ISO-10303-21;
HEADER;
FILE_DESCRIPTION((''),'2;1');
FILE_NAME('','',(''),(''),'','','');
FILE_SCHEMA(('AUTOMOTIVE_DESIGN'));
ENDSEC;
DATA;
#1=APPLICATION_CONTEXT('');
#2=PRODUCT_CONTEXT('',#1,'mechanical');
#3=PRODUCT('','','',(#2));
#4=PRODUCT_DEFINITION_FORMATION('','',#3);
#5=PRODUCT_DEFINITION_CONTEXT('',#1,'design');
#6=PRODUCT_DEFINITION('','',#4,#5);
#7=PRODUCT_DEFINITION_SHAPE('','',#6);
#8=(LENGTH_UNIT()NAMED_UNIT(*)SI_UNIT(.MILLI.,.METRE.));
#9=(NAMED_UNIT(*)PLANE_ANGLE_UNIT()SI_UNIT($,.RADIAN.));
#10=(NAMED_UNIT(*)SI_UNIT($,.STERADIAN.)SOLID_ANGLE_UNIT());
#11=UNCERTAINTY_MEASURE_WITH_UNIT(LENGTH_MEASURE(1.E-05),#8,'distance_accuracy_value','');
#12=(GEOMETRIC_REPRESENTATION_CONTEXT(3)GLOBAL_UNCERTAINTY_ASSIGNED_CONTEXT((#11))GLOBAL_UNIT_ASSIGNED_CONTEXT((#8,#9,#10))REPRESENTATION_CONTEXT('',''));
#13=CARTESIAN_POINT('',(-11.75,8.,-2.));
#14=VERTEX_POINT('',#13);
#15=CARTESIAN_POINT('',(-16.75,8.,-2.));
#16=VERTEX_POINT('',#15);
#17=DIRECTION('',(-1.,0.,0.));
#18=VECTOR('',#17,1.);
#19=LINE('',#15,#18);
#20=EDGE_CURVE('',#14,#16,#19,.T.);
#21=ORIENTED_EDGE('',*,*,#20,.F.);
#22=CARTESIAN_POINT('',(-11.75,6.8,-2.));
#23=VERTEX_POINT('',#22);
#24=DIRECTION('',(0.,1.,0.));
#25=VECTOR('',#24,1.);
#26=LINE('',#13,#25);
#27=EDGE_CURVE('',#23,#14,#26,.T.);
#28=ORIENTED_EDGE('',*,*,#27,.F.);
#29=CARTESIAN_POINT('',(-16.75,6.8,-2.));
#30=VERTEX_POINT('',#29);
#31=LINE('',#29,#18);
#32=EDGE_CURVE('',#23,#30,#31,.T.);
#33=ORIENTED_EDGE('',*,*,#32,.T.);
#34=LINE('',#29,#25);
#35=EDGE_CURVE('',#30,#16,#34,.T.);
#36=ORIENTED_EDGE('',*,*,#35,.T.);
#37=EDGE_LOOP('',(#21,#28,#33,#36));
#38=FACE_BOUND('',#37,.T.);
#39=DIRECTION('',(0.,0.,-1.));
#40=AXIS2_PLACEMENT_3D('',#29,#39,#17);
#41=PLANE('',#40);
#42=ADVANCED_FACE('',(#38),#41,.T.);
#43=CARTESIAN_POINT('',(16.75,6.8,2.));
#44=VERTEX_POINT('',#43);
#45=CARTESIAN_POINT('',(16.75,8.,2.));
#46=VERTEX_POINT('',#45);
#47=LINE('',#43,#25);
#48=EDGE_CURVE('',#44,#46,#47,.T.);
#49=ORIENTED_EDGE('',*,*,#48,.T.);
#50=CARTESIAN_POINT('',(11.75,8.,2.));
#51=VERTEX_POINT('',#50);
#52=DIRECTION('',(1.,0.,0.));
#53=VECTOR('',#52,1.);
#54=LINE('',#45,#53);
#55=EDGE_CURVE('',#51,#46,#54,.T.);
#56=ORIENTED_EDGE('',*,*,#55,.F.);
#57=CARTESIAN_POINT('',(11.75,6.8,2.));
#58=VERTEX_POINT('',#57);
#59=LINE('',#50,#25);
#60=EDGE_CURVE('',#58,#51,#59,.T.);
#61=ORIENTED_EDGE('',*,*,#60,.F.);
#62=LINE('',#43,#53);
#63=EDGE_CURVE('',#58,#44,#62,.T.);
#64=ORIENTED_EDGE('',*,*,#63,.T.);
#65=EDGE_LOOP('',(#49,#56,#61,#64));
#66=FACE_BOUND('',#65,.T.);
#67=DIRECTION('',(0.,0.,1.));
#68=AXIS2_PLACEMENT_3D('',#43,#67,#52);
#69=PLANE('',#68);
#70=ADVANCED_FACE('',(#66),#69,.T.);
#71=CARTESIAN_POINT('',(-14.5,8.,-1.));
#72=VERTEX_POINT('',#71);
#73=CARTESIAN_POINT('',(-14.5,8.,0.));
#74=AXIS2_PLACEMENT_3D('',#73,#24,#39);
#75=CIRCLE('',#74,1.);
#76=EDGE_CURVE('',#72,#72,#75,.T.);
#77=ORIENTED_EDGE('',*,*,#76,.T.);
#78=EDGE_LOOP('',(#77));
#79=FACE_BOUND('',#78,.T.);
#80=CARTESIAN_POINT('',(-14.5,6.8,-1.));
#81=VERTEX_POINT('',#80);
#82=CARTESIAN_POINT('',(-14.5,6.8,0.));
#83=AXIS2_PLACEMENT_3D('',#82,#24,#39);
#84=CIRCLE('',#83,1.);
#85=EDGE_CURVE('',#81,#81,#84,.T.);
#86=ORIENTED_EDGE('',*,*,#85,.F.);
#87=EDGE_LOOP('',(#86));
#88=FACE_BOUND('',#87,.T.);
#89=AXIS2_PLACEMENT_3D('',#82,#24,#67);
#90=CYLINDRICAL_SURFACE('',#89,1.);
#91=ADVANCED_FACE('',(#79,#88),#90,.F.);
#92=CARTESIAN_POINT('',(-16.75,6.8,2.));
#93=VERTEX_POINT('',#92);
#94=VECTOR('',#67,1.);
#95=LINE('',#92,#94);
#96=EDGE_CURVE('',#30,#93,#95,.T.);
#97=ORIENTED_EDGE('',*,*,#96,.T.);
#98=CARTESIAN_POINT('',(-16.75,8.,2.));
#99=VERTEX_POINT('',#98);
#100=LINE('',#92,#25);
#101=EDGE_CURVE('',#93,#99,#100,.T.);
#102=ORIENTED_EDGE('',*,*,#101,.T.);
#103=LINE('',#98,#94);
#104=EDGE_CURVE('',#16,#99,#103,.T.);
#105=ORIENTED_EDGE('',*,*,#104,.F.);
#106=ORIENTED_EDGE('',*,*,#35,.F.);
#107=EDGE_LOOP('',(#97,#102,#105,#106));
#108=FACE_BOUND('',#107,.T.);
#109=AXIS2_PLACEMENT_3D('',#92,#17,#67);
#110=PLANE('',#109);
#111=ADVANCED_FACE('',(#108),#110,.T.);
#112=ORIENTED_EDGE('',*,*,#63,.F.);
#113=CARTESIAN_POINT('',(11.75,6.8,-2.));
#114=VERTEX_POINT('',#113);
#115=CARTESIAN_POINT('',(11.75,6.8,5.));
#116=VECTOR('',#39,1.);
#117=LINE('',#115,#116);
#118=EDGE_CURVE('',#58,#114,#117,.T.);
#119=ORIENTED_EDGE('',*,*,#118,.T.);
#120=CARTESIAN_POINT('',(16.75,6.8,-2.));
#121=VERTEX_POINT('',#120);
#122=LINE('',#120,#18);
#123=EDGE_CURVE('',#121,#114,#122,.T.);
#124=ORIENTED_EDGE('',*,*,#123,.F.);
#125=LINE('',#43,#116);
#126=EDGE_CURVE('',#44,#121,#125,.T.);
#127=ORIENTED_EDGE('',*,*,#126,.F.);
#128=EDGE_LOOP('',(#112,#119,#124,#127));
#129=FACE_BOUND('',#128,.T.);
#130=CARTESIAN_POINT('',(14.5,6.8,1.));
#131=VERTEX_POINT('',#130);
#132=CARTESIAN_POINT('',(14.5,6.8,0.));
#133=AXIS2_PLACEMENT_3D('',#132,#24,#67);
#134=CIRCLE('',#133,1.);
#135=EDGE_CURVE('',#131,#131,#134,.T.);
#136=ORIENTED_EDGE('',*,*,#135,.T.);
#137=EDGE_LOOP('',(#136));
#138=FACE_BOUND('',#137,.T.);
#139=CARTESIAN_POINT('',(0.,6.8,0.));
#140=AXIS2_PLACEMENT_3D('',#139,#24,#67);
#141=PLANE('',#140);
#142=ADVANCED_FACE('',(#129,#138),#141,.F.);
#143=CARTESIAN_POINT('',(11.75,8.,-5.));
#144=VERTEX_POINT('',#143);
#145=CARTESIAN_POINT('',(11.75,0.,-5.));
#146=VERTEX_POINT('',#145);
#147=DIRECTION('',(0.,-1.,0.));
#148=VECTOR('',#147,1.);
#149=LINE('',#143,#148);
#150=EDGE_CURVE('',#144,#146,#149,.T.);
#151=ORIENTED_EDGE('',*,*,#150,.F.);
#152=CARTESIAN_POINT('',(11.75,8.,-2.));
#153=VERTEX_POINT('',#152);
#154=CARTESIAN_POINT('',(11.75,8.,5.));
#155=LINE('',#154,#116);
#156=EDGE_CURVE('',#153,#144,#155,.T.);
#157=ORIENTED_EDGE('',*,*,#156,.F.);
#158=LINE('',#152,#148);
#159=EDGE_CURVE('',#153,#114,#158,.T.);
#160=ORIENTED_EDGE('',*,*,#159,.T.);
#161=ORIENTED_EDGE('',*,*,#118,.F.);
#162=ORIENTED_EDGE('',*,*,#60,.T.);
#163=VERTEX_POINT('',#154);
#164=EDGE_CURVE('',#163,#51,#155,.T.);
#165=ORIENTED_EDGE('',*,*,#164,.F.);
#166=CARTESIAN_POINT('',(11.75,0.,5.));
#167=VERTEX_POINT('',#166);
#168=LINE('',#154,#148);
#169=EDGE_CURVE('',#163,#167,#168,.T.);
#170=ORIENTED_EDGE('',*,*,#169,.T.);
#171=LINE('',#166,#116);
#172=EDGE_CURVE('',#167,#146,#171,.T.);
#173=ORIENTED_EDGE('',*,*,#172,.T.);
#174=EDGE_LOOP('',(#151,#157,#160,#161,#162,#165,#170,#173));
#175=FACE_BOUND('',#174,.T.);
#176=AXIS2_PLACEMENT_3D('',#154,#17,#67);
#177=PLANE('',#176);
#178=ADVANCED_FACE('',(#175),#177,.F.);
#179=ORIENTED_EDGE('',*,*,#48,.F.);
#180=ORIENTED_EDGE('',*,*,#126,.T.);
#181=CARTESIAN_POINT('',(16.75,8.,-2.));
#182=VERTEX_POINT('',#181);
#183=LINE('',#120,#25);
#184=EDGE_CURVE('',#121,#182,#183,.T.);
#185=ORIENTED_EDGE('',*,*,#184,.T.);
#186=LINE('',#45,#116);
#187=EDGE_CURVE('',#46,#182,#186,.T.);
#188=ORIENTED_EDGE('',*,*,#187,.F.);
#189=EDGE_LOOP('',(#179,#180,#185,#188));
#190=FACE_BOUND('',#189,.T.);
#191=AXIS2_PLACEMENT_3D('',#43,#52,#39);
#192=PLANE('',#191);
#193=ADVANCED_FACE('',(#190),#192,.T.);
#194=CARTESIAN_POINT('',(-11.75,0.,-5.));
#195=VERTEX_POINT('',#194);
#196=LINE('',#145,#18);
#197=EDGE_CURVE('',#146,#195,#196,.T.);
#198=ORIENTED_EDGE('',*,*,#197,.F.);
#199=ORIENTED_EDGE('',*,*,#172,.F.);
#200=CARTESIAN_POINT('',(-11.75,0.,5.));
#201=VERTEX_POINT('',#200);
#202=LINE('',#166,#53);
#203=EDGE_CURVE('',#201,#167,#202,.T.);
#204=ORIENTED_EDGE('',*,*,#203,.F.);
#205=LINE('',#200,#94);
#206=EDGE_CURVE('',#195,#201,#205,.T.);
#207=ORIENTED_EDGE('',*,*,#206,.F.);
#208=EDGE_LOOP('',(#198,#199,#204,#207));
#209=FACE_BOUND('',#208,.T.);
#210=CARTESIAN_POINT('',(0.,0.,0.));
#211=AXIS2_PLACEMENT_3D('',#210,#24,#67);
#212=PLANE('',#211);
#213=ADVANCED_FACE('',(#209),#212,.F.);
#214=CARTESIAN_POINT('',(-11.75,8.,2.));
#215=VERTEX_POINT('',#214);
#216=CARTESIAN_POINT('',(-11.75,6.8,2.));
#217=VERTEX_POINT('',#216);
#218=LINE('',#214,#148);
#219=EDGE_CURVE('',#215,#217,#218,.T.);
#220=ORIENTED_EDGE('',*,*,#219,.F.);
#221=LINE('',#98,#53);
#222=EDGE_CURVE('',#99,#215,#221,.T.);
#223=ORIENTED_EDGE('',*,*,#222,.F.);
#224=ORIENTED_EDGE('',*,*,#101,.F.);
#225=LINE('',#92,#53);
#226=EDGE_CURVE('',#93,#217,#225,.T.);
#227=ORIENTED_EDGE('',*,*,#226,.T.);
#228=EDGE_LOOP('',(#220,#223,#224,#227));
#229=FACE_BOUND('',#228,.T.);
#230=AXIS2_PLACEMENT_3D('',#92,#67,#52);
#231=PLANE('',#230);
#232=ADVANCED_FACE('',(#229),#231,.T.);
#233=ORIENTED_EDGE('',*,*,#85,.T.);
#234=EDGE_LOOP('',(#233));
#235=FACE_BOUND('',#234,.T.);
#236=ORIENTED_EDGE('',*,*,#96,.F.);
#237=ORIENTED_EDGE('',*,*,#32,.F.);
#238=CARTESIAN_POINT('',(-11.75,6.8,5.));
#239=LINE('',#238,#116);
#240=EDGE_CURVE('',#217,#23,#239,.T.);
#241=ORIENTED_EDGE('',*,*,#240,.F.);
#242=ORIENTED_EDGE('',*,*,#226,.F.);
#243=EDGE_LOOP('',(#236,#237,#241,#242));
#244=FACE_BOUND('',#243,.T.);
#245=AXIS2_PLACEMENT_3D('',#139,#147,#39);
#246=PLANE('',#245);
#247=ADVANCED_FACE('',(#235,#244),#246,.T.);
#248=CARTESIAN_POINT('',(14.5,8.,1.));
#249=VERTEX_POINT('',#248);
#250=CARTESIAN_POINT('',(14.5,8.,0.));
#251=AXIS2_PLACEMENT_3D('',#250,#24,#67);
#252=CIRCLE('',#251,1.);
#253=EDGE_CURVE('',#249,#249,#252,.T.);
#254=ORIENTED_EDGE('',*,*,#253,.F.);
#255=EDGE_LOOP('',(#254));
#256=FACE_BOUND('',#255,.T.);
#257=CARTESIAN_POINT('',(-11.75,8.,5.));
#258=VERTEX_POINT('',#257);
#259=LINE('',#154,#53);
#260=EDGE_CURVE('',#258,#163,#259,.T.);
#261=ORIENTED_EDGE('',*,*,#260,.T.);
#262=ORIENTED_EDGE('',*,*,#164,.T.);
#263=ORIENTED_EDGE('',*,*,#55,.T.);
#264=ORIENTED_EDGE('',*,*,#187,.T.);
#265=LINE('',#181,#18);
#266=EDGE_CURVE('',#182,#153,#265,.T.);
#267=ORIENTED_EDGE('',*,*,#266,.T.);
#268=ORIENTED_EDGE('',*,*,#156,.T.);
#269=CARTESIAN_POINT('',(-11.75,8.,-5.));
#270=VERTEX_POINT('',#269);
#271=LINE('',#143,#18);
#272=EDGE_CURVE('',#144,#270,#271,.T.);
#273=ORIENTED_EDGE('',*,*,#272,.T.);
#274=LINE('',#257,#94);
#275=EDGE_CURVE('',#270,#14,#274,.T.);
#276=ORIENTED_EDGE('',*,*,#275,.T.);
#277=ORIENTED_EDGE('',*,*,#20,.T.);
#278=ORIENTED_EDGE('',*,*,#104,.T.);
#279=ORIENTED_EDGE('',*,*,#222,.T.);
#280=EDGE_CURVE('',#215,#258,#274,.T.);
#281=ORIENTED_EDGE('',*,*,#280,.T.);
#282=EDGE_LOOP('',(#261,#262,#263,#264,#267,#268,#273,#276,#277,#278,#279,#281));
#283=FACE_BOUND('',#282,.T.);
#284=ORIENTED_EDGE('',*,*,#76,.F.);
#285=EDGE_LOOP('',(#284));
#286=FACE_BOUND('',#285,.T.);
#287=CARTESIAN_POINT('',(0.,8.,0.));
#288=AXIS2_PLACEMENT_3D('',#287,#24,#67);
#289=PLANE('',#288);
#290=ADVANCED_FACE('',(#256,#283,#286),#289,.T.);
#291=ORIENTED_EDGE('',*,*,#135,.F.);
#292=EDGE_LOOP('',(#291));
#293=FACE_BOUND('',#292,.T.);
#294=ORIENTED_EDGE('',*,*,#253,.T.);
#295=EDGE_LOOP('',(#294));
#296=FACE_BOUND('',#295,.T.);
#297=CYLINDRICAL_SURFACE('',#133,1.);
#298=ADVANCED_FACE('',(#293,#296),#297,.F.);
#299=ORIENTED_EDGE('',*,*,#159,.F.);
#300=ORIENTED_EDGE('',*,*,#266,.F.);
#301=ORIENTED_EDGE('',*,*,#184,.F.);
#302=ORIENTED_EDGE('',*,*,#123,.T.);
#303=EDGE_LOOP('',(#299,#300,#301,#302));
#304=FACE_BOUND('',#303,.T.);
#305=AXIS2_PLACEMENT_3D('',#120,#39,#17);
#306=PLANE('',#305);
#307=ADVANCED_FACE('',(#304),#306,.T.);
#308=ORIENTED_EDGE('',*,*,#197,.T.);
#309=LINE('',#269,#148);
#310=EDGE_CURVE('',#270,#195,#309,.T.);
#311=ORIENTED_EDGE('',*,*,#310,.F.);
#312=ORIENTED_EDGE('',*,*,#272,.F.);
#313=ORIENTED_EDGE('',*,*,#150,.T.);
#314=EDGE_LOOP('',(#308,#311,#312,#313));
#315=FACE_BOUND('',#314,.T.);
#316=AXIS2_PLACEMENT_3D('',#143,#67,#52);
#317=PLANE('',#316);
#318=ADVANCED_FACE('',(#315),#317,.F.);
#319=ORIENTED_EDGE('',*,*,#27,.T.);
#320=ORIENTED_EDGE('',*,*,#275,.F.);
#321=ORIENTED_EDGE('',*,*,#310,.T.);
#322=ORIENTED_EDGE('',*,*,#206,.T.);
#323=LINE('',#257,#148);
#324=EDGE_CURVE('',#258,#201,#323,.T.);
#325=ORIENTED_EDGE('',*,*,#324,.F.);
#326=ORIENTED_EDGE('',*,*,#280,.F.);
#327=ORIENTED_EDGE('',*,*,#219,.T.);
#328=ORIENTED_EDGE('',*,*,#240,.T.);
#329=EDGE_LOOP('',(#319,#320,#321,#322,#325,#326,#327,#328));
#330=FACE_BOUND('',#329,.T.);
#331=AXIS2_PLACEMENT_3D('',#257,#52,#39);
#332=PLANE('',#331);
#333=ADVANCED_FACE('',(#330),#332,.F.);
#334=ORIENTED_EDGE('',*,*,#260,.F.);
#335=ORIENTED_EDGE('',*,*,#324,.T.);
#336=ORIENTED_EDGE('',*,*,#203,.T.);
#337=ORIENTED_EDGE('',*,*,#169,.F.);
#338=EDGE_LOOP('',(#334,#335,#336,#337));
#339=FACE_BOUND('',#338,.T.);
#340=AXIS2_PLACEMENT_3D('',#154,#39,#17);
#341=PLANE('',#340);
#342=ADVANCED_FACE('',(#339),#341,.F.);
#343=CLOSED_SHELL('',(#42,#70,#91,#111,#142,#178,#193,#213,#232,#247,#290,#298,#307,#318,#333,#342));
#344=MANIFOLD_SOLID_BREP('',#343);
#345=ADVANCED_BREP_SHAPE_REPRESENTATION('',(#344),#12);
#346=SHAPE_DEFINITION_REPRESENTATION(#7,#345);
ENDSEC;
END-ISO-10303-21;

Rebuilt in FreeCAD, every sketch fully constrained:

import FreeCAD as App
import Part
import Sketcher
from FreeCAD import Vector
Q = App.Units.Quantity


def add_polygon(sketch, points):
    """Adds a closed chain of lines whose ends are joined by coincident constraints."""
    first, n = sketch.GeometryCount, len(points)
    for a, b in zip(points, points[1:] + points[:1]):
        sketch.addGeometry(Part.LineSegment(App.Vector(*a, 0), App.Vector(*b, 0)), False)
    for i in range(n):
        sketch.addConstraint(Sketcher.Constraint("Coincident", first + i, 2, first + (i + 1) % n, 1))

doc = App.newDocument("Part")
body = doc.addObject("PartDesign::Body", "Body")

# Sketch on XZ plane
sketch1 = doc.addObject("Sketcher::SketchObject", "Sketch")
body.addObject(sketch1)
sketch1.AttachmentSupport = (doc.XZ_Plane, [""])
sketch1.MapMode = "FlatFace"
add_polygon(sketch1, [(-12, -5), (-12, 5), (12, 5), (12, -5)])  # lines 0-3
sketch1.addConstraint([
    Sketcher.Constraint("Vertical", 0),
    Sketcher.Constraint("Horizontal", 1),
    Sketcher.Constraint("Vertical", 2),
    Sketcher.Constraint("Horizontal", 3),
    Sketcher.Constraint("Symmetric", 0, 2, 2, 2, -1, 1),
    Sketcher.Constraint("DistanceY", 0, 1, 0, 2, Q("10 mm")),
    Sketcher.Constraint("DistanceX", 1, 1, 1, 2, Q("23.5 mm")),
])
pad1 = doc.addObject("PartDesign::Pad", "Pad")
body.addObject(pad1)
pad1.Profile = sketch1
pad1.Length = 8
pad1.Reversed = True

# Sketch on XZ plane
sketch2 = doc.addObject("Sketcher::SketchObject", "Sketch001")
body.addObject(sketch2)
sketch2.AttachmentSupport = (doc.XZ_Plane, [""])
sketch2.MapMode = "FlatFace"
sketch2.AttachmentOffset = App.Placement(Vector(0, 0, -8), App.Rotation())
add_polygon(sketch2, [(6.8, -2), (6.8, 2), (16.8, 2), (16.8, -2)])  # lines 0-3
sketch2.addGeometry(Part.Circle(Vector(14.5, 0, 0), Vector(0, 0, 1), 1), False)  # 4
add_polygon(sketch2, [(-16.8, -2), (-16.8, 2), (-6.8, 2), (-6.8, -2)])  # lines 5-8
sketch2.addGeometry(Part.Circle(Vector(-14.5, 0, 0), Vector(0, 0, 1), 1), False)  # 9
sketch2.addConstraint([
    Sketcher.Constraint("Vertical", 0),
    Sketcher.Constraint("Horizontal", 1),
    Sketcher.Constraint("Vertical", 2),
    Sketcher.Constraint("Horizontal", 3),
    Sketcher.Constraint("Vertical", 5),
    Sketcher.Constraint("Horizontal", 6),
    Sketcher.Constraint("Vertical", 7),
    Sketcher.Constraint("Horizontal", 8),
    Sketcher.Constraint("Equal", 4, 9),
    Sketcher.Constraint("Symmetric", 4, 3, 9, 3, -1, 1),
    Sketcher.Constraint("Symmetric", 2, 2, 5, 2, -1, 1),
    Sketcher.Constraint("Symmetric", 0, 2, 7, 2, -1, 1),
    Sketcher.Constraint("PointOnObject", 4, 3, -1),
    Sketcher.Constraint("Horizontal", 1, 2, 5, 2),
    Sketcher.Constraint("Diameter", 4, Q("2 mm")),
    Sketcher.Constraint("DistanceX", 1, 1, 1, 2, Q("10 mm")),
    Sketcher.Constraint("DistanceY", 0, 1, 0, 2, Q("4 mm")),
    Sketcher.Constraint("DistanceX", 9, 3, 4, 3, Q("29 mm")),
    Sketcher.Constraint("DistanceX", 5, 2, 0, 2, Q("23.5 mm")),
])
pad2 = doc.addObject("PartDesign::Pad", "Pad001")
body.addObject(pad2)
pad2.Profile = sketch2
pad2.Length = 1.2

doc.recompute()
